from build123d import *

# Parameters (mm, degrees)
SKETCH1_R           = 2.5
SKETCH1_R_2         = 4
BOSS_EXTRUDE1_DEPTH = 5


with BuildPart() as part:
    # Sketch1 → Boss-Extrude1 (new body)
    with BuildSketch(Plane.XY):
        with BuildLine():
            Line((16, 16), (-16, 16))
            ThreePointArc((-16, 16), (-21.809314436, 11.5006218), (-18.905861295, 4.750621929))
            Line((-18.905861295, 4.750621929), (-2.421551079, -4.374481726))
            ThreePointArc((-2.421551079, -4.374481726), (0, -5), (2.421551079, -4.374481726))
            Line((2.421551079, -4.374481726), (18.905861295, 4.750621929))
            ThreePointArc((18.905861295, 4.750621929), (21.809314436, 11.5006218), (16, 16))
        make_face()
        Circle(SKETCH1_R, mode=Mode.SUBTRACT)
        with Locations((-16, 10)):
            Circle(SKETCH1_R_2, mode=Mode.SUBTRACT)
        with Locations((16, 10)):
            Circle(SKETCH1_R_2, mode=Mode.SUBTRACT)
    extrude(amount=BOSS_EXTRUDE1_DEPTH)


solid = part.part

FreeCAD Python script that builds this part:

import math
import FreeCAD as App
import Part
import Sketcher

V = App.Vector

doc = App.newDocument("Part")
body = doc.addObject("PartDesign::Body", "Body")

sketch1 = body.newObject("Sketcher::SketchObject", "Sketch")
sketch1.AttachmentSupport = (doc.getObject("XY_Plane"), [""])
sketch1.MapMode = "FlatFace"
sketch1.addGeometry([
    Part.LineSegment(V(16, 16, 0), V(-16, 16, 0)),
    Part.ArcOfCircle(Part.Circle(V(-16, 10, 0), V(0, 0, 1), 6), math.radians(90), math.radians(241.03271)),
    Part.LineSegment(V(-18.905861, 4.750622, 0), V(-2.421551, -4.374482, 0)),
    Part.ArcOfCircle(Part.Circle(V(0, 0, 0), V(0, 0, 1), 5), math.radians(-118.96729), math.radians(-61.03271)),
    Part.LineSegment(V(2.421551, -4.374482, 0), V(18.905861, 4.750622, 0)),
    Part.ArcOfCircle(Part.Circle(V(16, 10, 0), V(0, 0, 1), 6), math.radians(-61.03271), math.radians(90)),
    Part.Circle(V(0, 0, 0), V(0, 0, 1), 2.5),
    Part.Circle(V(-16, 10, 0), V(0, 0, 1), 4),
    Part.Circle(V(16, 10, 0), V(0, 0, 1), 4),
], False)
sketch1.addConstraint([
    Sketcher.Constraint("Tangent", 0, 2, 1, 1),
    Sketcher.Constraint("Tangent", 1, 2, 2, 1),
    Sketcher.Constraint("Tangent", 2, 2, 3, 1),
    Sketcher.Constraint("Tangent", 3, 2, 4, 1),
    Sketcher.Constraint("Tangent", 4, 2, 5, 1),
    Sketcher.Constraint("Tangent", 5, 2, 0, 1),
    Sketcher.Constraint("Horizontal", 0),
    Sketcher.Constraint("Coincident", 3, 3, -1, 1),
    Sketcher.Constraint("Coincident", 6, 3, -1, 1),
    Sketcher.Constraint("Coincident", 7, 3, 1, 3),
    Sketcher.Constraint("Coincident", 8, 3, 5, 3),
    Sketcher.Constraint("Equal", 1, 5),
    Sketcher.Constraint("Equal", 7, 8),
    Sketcher.Constraint("Horizontal", 2, 2, 3, 2),
    Sketcher.Constraint("Diameter", 6, 5.0),
    Sketcher.Constraint("Diameter", 7, 8.0),
    Sketcher.Constraint("Radius", 1, 6.0),
    Sketcher.Constraint("Radius", 3, 5.0),
    Sketcher.Constraint("DistanceX", 0, 2, 0, 1, 32.0),
    Sketcher.Constraint("DistanceY", -1, 1, 1, 3, 10.0),
])
pad1 = body.newObject("PartDesign::Pad", "Pad")
pad1.Profile = sketch1
pad1.Length = 5

doc.recompute()
